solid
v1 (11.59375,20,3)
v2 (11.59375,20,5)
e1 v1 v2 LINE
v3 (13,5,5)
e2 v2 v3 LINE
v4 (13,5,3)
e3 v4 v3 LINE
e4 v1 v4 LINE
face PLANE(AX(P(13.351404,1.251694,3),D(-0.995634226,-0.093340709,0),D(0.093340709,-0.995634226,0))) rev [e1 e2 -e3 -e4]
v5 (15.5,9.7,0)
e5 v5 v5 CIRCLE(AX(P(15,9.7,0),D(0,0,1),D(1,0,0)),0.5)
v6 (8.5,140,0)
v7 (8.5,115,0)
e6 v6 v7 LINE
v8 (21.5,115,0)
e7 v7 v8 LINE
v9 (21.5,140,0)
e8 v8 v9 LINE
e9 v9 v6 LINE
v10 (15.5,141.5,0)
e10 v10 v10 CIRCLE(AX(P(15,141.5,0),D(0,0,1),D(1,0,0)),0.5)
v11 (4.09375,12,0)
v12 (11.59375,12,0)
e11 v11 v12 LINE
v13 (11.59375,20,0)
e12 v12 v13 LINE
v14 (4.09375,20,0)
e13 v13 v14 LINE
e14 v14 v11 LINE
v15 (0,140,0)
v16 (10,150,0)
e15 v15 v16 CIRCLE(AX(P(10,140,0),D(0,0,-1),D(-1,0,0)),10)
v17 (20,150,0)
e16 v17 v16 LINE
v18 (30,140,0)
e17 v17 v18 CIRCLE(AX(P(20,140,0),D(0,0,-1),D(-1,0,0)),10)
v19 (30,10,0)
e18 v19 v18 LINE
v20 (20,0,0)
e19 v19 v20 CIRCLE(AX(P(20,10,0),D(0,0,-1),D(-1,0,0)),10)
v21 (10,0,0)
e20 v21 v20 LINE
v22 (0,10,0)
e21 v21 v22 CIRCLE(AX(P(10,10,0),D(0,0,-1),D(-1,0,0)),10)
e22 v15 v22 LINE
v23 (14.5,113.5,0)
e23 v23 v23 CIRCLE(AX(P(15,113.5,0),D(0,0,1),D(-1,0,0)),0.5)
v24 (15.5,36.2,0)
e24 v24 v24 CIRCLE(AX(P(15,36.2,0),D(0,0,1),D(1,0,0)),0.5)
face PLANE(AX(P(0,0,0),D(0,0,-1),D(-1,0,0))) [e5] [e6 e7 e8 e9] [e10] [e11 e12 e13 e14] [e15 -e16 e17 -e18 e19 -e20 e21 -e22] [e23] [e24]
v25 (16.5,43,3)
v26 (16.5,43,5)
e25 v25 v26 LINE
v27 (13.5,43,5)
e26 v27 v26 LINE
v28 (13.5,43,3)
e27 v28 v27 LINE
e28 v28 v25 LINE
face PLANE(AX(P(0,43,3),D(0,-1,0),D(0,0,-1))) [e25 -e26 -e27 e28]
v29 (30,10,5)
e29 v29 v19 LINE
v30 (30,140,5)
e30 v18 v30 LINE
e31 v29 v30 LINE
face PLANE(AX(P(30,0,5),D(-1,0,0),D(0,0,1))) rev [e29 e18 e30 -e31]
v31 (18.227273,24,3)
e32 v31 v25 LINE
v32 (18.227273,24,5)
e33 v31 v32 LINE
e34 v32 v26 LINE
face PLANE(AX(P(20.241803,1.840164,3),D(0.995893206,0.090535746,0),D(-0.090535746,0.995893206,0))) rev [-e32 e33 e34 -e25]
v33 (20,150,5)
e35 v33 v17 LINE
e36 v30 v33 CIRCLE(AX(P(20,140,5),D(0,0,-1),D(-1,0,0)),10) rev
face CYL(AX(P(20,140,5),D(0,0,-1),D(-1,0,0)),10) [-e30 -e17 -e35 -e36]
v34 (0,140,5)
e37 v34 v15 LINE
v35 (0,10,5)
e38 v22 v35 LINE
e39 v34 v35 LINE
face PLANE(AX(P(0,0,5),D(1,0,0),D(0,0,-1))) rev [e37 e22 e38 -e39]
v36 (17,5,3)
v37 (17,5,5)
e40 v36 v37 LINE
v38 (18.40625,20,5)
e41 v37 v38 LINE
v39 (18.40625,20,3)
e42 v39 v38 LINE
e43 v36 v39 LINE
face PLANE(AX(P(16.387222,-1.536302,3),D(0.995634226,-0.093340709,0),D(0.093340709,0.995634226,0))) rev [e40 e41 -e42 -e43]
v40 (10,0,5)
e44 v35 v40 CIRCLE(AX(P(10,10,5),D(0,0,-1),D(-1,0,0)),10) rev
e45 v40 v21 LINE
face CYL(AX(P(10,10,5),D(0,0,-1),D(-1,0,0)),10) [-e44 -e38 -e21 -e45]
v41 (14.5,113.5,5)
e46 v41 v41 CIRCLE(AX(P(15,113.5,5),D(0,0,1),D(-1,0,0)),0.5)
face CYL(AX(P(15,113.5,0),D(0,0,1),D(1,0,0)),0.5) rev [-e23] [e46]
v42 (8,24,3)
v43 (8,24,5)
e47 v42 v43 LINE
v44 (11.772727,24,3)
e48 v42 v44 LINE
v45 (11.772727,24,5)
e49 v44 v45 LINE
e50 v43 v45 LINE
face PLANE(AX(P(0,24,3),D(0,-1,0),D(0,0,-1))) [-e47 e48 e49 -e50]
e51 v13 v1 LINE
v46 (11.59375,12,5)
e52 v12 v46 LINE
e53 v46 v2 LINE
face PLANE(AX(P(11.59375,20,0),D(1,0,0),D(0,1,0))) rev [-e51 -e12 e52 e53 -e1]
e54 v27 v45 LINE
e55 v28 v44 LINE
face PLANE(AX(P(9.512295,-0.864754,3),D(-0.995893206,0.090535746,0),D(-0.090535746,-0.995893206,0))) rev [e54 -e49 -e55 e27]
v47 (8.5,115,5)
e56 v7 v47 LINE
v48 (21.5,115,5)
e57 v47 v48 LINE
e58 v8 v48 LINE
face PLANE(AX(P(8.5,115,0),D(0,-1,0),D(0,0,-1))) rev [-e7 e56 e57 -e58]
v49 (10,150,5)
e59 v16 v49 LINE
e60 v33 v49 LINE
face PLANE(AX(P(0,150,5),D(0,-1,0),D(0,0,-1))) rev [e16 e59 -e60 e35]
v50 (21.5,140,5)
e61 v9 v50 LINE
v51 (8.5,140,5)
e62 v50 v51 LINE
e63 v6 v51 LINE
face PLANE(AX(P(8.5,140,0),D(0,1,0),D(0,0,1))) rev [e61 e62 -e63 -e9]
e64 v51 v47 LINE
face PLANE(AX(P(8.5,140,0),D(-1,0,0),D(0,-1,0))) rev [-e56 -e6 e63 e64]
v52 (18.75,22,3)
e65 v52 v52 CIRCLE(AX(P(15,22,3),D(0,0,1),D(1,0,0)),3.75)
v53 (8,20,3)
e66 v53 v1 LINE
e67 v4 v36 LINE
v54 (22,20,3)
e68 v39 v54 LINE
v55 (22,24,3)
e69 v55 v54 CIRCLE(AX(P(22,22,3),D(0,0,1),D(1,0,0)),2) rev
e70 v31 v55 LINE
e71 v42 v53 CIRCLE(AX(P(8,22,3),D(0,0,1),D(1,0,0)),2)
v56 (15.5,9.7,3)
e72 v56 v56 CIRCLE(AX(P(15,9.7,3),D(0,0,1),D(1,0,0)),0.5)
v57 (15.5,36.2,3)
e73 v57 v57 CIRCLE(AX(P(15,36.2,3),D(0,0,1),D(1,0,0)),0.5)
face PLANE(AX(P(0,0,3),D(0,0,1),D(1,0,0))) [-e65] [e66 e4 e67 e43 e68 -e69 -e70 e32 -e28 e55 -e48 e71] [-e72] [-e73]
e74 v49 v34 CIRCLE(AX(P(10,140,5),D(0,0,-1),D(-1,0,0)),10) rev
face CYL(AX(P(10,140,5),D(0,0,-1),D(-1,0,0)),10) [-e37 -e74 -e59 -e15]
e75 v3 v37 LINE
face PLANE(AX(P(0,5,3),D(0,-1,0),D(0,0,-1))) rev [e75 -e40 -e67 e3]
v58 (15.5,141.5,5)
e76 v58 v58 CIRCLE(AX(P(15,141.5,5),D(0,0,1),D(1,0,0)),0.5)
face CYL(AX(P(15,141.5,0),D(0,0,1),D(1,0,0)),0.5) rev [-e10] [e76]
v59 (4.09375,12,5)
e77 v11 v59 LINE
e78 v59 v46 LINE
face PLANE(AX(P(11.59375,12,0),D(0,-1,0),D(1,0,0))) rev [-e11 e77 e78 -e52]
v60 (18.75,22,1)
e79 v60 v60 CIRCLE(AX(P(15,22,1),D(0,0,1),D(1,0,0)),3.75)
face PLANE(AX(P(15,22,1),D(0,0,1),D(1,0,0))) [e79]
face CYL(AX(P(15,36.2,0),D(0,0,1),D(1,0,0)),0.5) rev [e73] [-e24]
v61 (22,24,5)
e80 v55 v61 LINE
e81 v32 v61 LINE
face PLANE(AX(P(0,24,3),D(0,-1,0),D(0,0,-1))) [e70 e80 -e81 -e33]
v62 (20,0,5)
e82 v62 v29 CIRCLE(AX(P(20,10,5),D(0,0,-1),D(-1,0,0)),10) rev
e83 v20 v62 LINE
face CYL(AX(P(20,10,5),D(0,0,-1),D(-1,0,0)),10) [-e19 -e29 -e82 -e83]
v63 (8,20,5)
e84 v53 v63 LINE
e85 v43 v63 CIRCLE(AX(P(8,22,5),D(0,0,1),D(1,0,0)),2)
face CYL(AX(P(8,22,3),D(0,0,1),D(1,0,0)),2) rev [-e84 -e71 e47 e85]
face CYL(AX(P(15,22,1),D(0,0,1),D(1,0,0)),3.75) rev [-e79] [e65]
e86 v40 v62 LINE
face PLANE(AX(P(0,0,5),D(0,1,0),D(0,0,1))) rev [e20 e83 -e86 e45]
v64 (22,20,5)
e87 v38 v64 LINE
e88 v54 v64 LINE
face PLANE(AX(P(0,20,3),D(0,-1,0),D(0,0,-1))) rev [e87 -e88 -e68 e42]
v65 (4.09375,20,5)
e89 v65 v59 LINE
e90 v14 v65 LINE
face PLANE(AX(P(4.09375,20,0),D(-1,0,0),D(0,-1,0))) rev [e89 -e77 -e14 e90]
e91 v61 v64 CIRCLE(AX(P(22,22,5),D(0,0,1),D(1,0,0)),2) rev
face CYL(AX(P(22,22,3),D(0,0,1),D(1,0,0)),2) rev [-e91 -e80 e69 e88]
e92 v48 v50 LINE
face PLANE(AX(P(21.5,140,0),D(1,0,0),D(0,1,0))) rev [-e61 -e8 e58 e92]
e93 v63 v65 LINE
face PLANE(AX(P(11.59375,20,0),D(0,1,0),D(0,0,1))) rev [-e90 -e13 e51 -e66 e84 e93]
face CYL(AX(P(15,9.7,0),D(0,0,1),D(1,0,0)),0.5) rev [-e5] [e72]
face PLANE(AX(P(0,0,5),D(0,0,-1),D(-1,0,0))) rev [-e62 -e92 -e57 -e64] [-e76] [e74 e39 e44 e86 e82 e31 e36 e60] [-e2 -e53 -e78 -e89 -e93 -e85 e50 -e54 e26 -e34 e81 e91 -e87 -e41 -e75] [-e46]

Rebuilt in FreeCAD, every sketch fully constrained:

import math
import FreeCAD as App
import Part
import Sketcher

V = App.Vector


def edges_at(feature, points):
    """Names of the edges that pass closest to the given points."""
    edges = feature.Shape.Edges
    near = lambda p: min(range(len(edges)), key=lambda i: edges[i].distToShape(Part.Vertex(*p))[0])
    return sorted({f"Edge{near(p) + 1}" for p in points})


def add_polygon(sketch, points):
    """Adds a closed chain of lines whose ends are joined by coincident constraints."""
    first, n = sketch.GeometryCount, len(points)
    for a, b in zip(points, points[1:] + points[:1]):
        sketch.addGeometry(Part.LineSegment(App.Vector(*a, 0), App.Vector(*b, 0)), False)
    for i in range(n):
        sketch.addConstraint(Sketcher.Constraint("Coincident", first + i, 2, first + (i + 1) % n, 1))

doc = App.newDocument("Part")
params = doc.addObject("Spreadsheet::Sheet", "Params")
for row, (alias, value) in enumerate([
    ("sketch1_width", "30 mm"),
    ("sketch1_height", "150 mm"),
    ("pad1_length", "5 mm"),
    ("fillet_radius", "10 mm"),
    ("sketch2_width", "13 mm"),
    ("sketch2_height", "25 mm"),
    ("sketch3_diameter", "1 mm"),
    ("sketch4_radius", "2 mm"),
    ("sketch4_width", "4 mm"),
    ("sketch4_width2", "3 mm"),
    ("pocket3_length", "2 mm"),
    ("sketch5_diameter", "1 mm"),
    ("sketch6_diameter", "7.5 mm"),
    ("pocket5_length", "2 mm"),
    ("sketch7_height", "8 mm"),
    ("sketch7_width", "7.5 mm"),
], start=1):
    params.set(f"A{row}", alias)
    params.set(f"B{row}", "=" + value)
    params.setAlias(f"B{row}", alias)

body = doc.addObject("PartDesign::Body", "Body")

# Sketch on XY plane
sketch1 = body.newObject("Sketcher::SketchObject", "Sketch")
sketch1.AttachmentSupport = (doc.getObject("XY_Plane"), [""])
sketch1.MapMode = "FlatFace"
add_polygon(sketch1, [(0, 150), (0, 0), (30, 0), (30, 150)])  # lines 0-3
sketch1.addConstraint(Sketcher.Constraint("Vertical", 0))
sketch1.addConstraint(Sketcher.Constraint("Horizontal", 1))
sketch1.addConstraint(Sketcher.Constraint("Vertical", 2))
sketch1.addConstraint(Sketcher.Constraint("Horizontal", 3))
sketch1.addConstraint(Sketcher.Constraint("Coincident", 0, 2, -1, 1))
sketch1.addConstraint(Sketcher.Constraint("DistanceX", 1, 1, 1, 2, 30.0))
sketch1.addConstraint(Sketcher.Constraint("DistanceY", 0, 2, 0, 1, 150.0))
sketch1.setExpression("Constraints[9]", "Params.sketch1_width")
sketch1.setExpression("Constraints[10]", "Params.sketch1_height")
pad1 = body.newObject("PartDesign::Pad", "Pad")
pad1.Profile = sketch1
pad1.setExpression("Length", "Params.pad1_length")
doc.recompute()

fillet = body.newObject("PartDesign::Fillet", "Fillet")
fillet.Base = (pad1, edges_at(pad1, [
    (0, 150, 2.5),
    (30, 150, 2.5),
    (30, 0, 2.5),
    (0, 0, 2.5),
]))
fillet.setExpression("Radius", "Params.fillet_radius")

# Sketch on XY plane
sketch2 = body.newObject("Sketcher::SketchObject", "Sketch001")
sketch2.AttachmentSupport = (doc.getObject("XY_Plane"), [""])
sketch2.MapMode = "FlatFace"
sketch2.AttachmentOffset = App.Placement(V(0, 0, 5), App.Rotation())
add_polygon(sketch2, [(8, 140), (8, 115), (22, 115), (22, 140)])  # lines 0-3
sketch2.addConstraint(Sketcher.Constraint("Vertical", 0))
sketch2.addConstraint(Sketcher.Constraint("Horizontal", 1))
sketch2.addConstraint(Sketcher.Constraint("Vertical", 2))
sketch2.addConstraint(Sketcher.Constraint("Horizontal", 3))
sketch2.addConstraint(Sketcher.Constraint("DistanceX", 1, 1, 1, 2, 13.0))
sketch2.addConstraint(Sketcher.Constraint("DistanceY", 0, 2, 0, 1, 25.0))
sketch2.addConstraint(Sketcher.Constraint("DistanceY", -1, 1, 0, 2, 115.0))
sketch2.addConstraint(Sketcher.Constraint("DistanceX", -1, 1, 0, 2, 8.5))
sketch2.setExpression("Constraints[8]", "Params.sketch2_width")
sketch2.setExpression("Constraints[9]", "Params.sketch2_height")
pocket1 = body.newObject("PartDesign::Pocket", "Pocket")
pocket1.Profile = sketch2
pocket1.Type = "ThroughAll"

# Sketch on XY plane
sketch3 = body.newObject("Sketcher::SketchObject", "Sketch002")
sketch3.AttachmentSupport = (doc.getObject("XY_Plane"), [""])
sketch3.MapMode = "FlatFace"
sketch3.AttachmentOffset = App.Placement(V(0, 0, 5), App.Rotation())
sketch3.addGeometry(Part.Circle(V(15, 141.5, 0), V(0, 0, 1), 0.5), False)
sketch3.addGeometry(Part.Circle(V(15, 113.5, 0), V(0, 0, 1), 0.5), False)
sketch3.addConstraint(Sketcher.Constraint("Equal", 0, 1))
sketch3.addConstraint(Sketcher.Constraint("Vertical", 0, 3, 1, 3))
sketch3.addConstraint(Sketcher.Constraint("Diameter", 0, 1.0))
sketch3.addConstraint(Sketcher.Constraint("DistanceX", -1, 1, 0, 3, 15.0))
sketch3.addConstraint(Sketcher.Constraint("DistanceY", 1, 3, 0, 3, 28.0))
sketch3.addConstraint(Sketcher.Constraint("DistanceY", -1, 1, 0, 3, 141.5))
sketch3.setExpression("Constraints[2]", "Params.sketch3_diameter")
pocket2 = body.newObject("PartDesign::Pocket", "Pocket001")
pocket2.Profile = sketch3
pocket2.Type = "ThroughAll"

# Sketch on XY plane
sketch4 = body.newObject("Sketcher::SketchObject", "Sketch003")
sketch4.AttachmentSupport = (doc.getObject("XY_Plane"), [""])
sketch4.MapMode = "FlatFace"
sketch4.AttachmentOffset = App.Placement(V(0, 0, 5), App.Rotation())
sketch4.addGeometry(Part.LineSegment(V(13, 5, 0), V(17, 5, 0)), False)
sketch4.addGeometry(Part.LineSegment(V(17, 5, 0), V(18.4, 20, 0)), False)
sketch4.addGeometry(Part.LineSegment(V(18.4, 20, 0), V(22, 20, 0)), False)
sketch4.addGeometry(Part.ArcOfCircle(Part.Circle(V(22, 22, 0), V(0, 0, 1), 2), math.radians(-90), math.radians(90)), False)
sketch4.addGeometry(Part.LineSegment(V(22, 24, 0), V(18.2, 24, 0)), False)
sketch4.addGeometry(Part.LineSegment(V(18.2, 24, 0), V(16.5, 43, 0)), False)
sketch4.addGeometry(Part.LineSegment(V(16.5, 43, 0), V(13.5, 43, 0)), False)
sketch4.addGeometry(Part.LineSegment(V(13.5, 43, 0), V(11.8, 24, 0)), False)
sketch4.addGeometry(Part.LineSegment(V(11.8, 24, 0), V(8, 24, 0)), False)
sketch4.addGeometry(Part.ArcOfCircle(Part.Circle(V(8, 22, 0), V(0, 0, 1), 2), math.radians(90), math.radians(270)), False)
sketch4.addGeometry(Part.LineSegment(V(8, 20, 0), V(11.6, 20, 0)), False)
sketch4.addGeometry(Part.LineSegment(V(11.6, 20, 0), V(13, 5, 0)), False)
sketch4.addConstraint(Sketcher.Constraint("Coincident", 0, 2, 1, 1))
sketch4.addConstraint(Sketcher.Constraint("Coincident", 1, 2, 2, 1))
sketch4.addConstraint(Sketcher.Constraint("Tangent", 2, 2, 3, 1))
sketch4.addConstraint(Sketcher.Constraint("Tangent", 3, 2, 4, 1))
sketch4.addConstraint(Sketcher.Constraint("Coincident", 4, 2, 5, 1))
sketch4.addConstraint(Sketcher.Constraint("Coincident", 5, 2, 6, 1))
sketch4.addConstraint(Sketcher.Constraint("Coincident", 6, 2, 7, 1))
sketch4.addConstraint(Sketcher.Constraint("Coincident", 7, 2, 8, 1))
sketch4.addConstraint(Sketcher.Constraint("Tangent", 8, 2, 9, 1))
sketch4.addConstraint(Sketcher.Constraint("Tangent", 9, 2, 10, 1))
sketch4.addConstraint(Sketcher.Constraint("Coincident", 10, 2, 11, 1))
sketch4.addConstraint(Sketcher.Constraint("Coincident", 11, 2, 0, 1))
sketch4.addConstraint(Sketcher.Constraint("Horizontal", 0))
sketch4.addConstraint(Sketcher.Constraint("Horizontal", 2))
sketch4.addConstraint(Sketcher.Constraint("Horizontal", 4))
sketch4.addConstraint(Sketcher.Constraint("Horizontal", 6))
sketch4.addConstraint(Sketcher.Constraint("Horizontal", 8))
sketch4.addConstraint(Sketcher.Constraint("Horizontal", 10))
sketch4.addConstraint(Sketcher.Constraint("Equal", 3, 9))
sketch4.addConstraint(Sketcher.Constraint("Horizontal", 3, 3, 9, 3))
sketch4.addConstraint(Sketcher.Constraint("Equal", 4, 8))
sketch4.addConstraint(Sketcher.Constraint("Equal", 2, 10))
sketch4.addConstraint(Sketcher.Constraint("Equal", 5, 7))
sketch4.addConstraint(Sketcher.Constraint("Equal", 1, 11))
sketch4.addConstraint(Sketcher.Constraint("Radius", 3, 2.0))
sketch4.addConstraint(Sketcher.Constraint("DistanceX", 0, 1, 0, 2, 4.0))
sketch4.addConstraint(Sketcher.Constraint("DistanceX", 6, 2, 6, 1, 3.0))
sketch4.addConstraint(Sketcher.Constraint("DistanceX", -1, 1, 3, 3, 22.0))
sketch4.addConstraint(Sketcher.Constraint("DistanceY", -1, 1, 3, 3, 22.0))
sketch4.addConstraint(Sketcher.Constraint("DistanceX", -1, 1, 9, 3, 8.0))
sketch4.addConstraint(Sketcher.Constraint("DistanceY", -1, 1, 0, 2, 5.0))
sketch4.addConstraint(Sketcher.Constraint("DistanceY", -1, 1, 5, 2, 43.0))
sketch4.addConstraint(Sketcher.Constraint("DistanceX", 2, 1, 2, 2, 3.59375))
sketch4.addConstraint(Sketcher.Constraint("Distance", 5, 19.078351))
sketch4.setExpression("Constraints[24]", "Params.sketch4_radius")
sketch4.setExpression("Constraints[25]", "Params.sketch4_width")
sketch4.setExpression("Constraints[26]", "Params.sketch4_width2")
pocket3 = body.newObject("PartDesign::Pocket", "Pocket002")
pocket3.Profile = sketch4
pocket3.setExpression("Length", "Params.pocket3_length")

# Sketch on XY plane
sketch5 = body.newObject("Sketcher::SketchObject", "Sketch004")
sketch5.AttachmentSupport = (doc.getObject("XY_Plane"), [""])
sketch5.MapMode = "FlatFace"
sketch5.AttachmentOffset = App.Placement(V(0, 0, 3), App.Rotation())
sketch5.addGeometry(Part.Circle(V(15, 36.2, 0), V(0, 0, 1), 0.5), False)
sketch5.addGeometry(Part.Circle(V(15, 9.7, 0), V(0, 0, 1), 0.5), False)
sketch5.addConstraint(Sketcher.Constraint("Equal", 0, 1))
sketch5.addConstraint(Sketcher.Constraint("Vertical", 0, 3, 1, 3))
sketch5.addConstraint(Sketcher.Constraint("Diameter", 0, 1.0))
sketch5.addConstraint(Sketcher.Constraint("DistanceX", -1, 1, 0, 3, 15.0))
sketch5.addConstraint(Sketcher.Constraint("DistanceY", -1, 1, 0, 3, 36.2))
sketch5.addConstraint(Sketcher.Constraint("DistanceY", -1, 1, 1, 3, 9.7))
sketch5.setExpression("Constraints[2]", "Params.sketch5_diameter")
pocket4 = body.newObject("PartDesign::Pocket", "Pocket003")
pocket4.Profile = sketch5
pocket4.Type = "ThroughAll"

# Sketch on XY plane
sketch6 = body.newObject("Sketcher::SketchObject", "Sketch005")
sketch6.AttachmentSupport = (doc.getObject("XY_Plane"), [""])
sketch6.MapMode = "FlatFace"
sketch6.AttachmentOffset = App.Placement(V(0, 0, 3), App.Rotation())
sketch6.addGeometry(Part.Circle(V(15, 22, 0), V(0, 0, 1), 3.8), False)
sketch6.addConstraint(Sketcher.Constraint("Diameter", 0, 7.5))
sketch6.addConstraint(Sketcher.Constraint("DistanceX", -1, 1, 0, 3, 15.0))
sketch6.addConstraint(Sketcher.Constraint("DistanceY", -1, 1, 0, 3, 22.0))
sketch6.setExpression("Constraints[0]", "Params.sketch6_diameter")
pocket5 = body.newObject("PartDesign::Pocket", "Pocket004")
pocket5.Profile = sketch6
pocket5.setExpression("Length", "Params.pocket5_length")

# Sketch on XY plane
sketch7 = body.newObject("Sketcher::SketchObject", "Sketch006")
sketch7.AttachmentSupport = (doc.getObject("XY_Plane"), [""])
sketch7.MapMode = "FlatFace"
sketch7.AttachmentOffset = App.Placement(V(0, 0, 5), App.Rotation())
add_polygon(sketch7, [(4, 20), (4, 12), (12, 12), (12, 20)])  # lines 0-3
sketch7.addConstraint(Sketcher.Constraint("Vertical", 0))
sketch7.addConstraint(Sketcher.Constraint("Horizontal", 1))
sketch7.addConstraint(Sketcher.Constraint("Vertical", 2))
sketch7.addConstraint(Sketcher.Constraint("Horizontal", 3))
sketch7.addConstraint(Sketcher.Constraint("DistanceY", 0, 2, 0, 1, 8.0))
sketch7.addConstraint(Sketcher.Constraint("DistanceX", 1, 1, 1, 2, 7.5))
sketch7.addConstraint(Sketcher.Constraint("DistanceY", -1, 1, 0, 2, 12.0))
sketch7.addConstraint(Sketcher.Constraint("DistanceX", -1, 1, 0, 2, 4.09375))
sketch7.setExpression("Constraints[8]", "Params.sketch7_height")
sketch7.setExpression("Constraints[9]", "Params.sketch7_width")
pocket6 = body.newObject("PartDesign::Pocket", "Pocket005")
pocket6.Profile = sketch7
pocket6.Type = "ThroughAll"

doc.recompute()
